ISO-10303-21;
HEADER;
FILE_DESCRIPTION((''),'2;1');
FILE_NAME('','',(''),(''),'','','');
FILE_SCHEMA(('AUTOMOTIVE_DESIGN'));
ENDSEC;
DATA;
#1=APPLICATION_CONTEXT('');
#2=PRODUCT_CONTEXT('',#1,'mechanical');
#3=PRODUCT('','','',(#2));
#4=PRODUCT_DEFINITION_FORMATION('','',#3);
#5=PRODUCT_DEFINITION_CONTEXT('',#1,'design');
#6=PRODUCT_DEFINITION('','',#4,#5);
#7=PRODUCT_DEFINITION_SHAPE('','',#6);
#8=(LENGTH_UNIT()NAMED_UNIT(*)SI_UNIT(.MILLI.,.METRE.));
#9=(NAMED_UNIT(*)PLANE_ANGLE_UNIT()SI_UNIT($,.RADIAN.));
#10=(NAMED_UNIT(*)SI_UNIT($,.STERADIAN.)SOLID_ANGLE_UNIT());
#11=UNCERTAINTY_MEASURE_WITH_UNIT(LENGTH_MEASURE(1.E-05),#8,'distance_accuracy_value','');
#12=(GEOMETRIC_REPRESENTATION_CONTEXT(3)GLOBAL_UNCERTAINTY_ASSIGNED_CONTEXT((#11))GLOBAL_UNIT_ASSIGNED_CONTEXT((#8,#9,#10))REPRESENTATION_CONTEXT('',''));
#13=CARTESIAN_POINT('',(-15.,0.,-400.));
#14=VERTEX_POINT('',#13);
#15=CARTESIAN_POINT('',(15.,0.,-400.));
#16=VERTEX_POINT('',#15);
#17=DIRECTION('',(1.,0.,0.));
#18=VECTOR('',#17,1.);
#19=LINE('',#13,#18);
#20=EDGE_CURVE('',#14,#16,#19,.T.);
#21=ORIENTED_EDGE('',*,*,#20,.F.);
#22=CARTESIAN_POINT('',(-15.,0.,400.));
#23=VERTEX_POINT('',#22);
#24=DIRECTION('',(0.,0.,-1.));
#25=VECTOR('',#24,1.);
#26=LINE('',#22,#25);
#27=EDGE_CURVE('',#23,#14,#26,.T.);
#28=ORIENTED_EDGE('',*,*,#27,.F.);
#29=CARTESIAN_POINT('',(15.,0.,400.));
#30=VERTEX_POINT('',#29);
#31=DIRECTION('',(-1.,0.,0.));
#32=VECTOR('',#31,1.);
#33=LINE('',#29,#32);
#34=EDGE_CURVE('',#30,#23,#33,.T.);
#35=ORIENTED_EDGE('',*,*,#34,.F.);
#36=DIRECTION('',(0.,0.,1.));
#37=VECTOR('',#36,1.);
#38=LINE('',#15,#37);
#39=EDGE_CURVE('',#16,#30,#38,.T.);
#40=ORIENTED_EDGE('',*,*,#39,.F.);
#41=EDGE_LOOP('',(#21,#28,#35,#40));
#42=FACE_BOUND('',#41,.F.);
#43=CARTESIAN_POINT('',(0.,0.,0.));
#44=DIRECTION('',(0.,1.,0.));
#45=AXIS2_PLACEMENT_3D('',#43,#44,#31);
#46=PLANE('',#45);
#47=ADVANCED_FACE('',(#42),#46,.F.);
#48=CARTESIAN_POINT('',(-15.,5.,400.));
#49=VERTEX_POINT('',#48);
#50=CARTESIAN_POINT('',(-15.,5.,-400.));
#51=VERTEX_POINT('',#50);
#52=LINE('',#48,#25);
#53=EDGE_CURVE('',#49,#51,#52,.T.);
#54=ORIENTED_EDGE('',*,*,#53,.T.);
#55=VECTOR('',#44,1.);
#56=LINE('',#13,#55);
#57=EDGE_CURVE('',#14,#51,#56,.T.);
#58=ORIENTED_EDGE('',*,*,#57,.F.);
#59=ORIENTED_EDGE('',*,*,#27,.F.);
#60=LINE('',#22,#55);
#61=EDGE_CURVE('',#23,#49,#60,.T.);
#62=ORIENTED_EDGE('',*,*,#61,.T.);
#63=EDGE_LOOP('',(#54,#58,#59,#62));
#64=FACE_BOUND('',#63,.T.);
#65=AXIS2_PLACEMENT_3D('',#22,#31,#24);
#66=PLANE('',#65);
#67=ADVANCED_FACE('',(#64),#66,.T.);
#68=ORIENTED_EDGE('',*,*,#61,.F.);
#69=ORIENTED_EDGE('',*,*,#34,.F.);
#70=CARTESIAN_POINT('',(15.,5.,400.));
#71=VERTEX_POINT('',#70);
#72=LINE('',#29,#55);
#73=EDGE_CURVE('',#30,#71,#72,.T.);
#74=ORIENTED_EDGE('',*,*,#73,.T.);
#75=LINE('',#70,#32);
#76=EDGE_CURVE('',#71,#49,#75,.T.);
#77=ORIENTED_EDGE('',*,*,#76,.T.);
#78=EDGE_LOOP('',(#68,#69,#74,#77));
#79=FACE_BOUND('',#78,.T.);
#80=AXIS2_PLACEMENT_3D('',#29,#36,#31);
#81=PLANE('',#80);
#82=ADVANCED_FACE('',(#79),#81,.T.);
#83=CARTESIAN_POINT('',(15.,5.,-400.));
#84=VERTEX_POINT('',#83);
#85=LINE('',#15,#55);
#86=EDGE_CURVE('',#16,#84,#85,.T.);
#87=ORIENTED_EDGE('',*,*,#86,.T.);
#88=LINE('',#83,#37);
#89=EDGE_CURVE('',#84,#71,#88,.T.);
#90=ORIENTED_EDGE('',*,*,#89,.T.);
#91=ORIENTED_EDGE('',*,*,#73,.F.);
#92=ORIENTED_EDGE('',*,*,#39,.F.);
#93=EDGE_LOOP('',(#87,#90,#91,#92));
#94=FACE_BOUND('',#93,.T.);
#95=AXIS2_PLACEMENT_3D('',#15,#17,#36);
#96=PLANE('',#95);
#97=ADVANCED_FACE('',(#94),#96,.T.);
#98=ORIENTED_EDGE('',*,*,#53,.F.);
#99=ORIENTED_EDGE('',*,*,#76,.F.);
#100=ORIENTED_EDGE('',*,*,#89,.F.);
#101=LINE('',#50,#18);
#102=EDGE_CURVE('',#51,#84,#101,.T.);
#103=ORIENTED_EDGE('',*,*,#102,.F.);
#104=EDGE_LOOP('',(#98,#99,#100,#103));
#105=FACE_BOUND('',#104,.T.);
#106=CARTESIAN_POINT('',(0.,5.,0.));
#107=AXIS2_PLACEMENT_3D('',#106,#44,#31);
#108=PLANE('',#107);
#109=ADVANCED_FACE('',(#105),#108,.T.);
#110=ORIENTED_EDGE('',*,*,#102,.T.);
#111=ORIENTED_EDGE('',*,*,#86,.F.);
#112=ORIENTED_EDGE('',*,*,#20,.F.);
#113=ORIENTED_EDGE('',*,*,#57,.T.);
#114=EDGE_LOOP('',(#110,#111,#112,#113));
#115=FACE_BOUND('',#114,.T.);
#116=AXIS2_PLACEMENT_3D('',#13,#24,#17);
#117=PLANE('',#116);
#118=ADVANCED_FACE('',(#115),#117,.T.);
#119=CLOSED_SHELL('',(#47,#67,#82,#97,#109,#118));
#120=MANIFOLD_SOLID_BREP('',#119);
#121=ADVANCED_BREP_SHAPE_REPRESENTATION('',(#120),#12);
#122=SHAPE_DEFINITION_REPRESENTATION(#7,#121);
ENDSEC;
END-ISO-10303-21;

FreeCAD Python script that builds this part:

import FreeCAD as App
import Part
import Sketcher


def add_polygon(sketch, points):
    """Adds a closed chain of lines whose ends are joined by coincident constraints."""
    first, n = sketch.GeometryCount, len(points)
    for a, b in zip(points, points[1:] + points[:1]):
        sketch.addGeometry(Part.LineSegment(App.Vector(*a, 0), App.Vector(*b, 0)), False)
    for i in range(n):
        sketch.addConstraint(Sketcher.Constraint("Coincident", first + i, 2, first + (i + 1) % n, 1))

doc = App.newDocument("Part")
body = doc.addObject("PartDesign::Body", "Body")

sketch1 = doc.addObject("Sketcher::SketchObject", "Sketch")
body.addObject(sketch1)
sketch1.AttachmentSupport = (doc.XZ_Plane, [""])
sketch1.MapMode = "FlatFace"
add_polygon(sketch1, [(-15, 400), (15, 400), (15, -400), (-15, -400)])
sketch1.addConstraint(Sketcher.Constraint("Horizontal", 0))
sketch1.addConstraint(Sketcher.Constraint("Vertical", 1))
sketch1.addConstraint(Sketcher.Constraint("Horizontal", 2))
sketch1.addConstraint(Sketcher.Constraint("Vertical", 3))
sketch1.addConstraint(Sketcher.Constraint("Symmetric", 0, 2, 2, 2, -1, 1))
sketch1.addConstraint(Sketcher.Constraint("DistanceX", 0, 1, 0, 2, 30.0))
sketch1.addConstraint(Sketcher.Constraint("DistanceY", 1, 2, 1, 1, 800.0))
pad1 = doc.addObject("PartDesign::Pad", "Pad")
body.addObject(pad1)
pad1.Profile = sketch1
pad1.Length = 5
pad1.Reversed = True

doc.recompute()
